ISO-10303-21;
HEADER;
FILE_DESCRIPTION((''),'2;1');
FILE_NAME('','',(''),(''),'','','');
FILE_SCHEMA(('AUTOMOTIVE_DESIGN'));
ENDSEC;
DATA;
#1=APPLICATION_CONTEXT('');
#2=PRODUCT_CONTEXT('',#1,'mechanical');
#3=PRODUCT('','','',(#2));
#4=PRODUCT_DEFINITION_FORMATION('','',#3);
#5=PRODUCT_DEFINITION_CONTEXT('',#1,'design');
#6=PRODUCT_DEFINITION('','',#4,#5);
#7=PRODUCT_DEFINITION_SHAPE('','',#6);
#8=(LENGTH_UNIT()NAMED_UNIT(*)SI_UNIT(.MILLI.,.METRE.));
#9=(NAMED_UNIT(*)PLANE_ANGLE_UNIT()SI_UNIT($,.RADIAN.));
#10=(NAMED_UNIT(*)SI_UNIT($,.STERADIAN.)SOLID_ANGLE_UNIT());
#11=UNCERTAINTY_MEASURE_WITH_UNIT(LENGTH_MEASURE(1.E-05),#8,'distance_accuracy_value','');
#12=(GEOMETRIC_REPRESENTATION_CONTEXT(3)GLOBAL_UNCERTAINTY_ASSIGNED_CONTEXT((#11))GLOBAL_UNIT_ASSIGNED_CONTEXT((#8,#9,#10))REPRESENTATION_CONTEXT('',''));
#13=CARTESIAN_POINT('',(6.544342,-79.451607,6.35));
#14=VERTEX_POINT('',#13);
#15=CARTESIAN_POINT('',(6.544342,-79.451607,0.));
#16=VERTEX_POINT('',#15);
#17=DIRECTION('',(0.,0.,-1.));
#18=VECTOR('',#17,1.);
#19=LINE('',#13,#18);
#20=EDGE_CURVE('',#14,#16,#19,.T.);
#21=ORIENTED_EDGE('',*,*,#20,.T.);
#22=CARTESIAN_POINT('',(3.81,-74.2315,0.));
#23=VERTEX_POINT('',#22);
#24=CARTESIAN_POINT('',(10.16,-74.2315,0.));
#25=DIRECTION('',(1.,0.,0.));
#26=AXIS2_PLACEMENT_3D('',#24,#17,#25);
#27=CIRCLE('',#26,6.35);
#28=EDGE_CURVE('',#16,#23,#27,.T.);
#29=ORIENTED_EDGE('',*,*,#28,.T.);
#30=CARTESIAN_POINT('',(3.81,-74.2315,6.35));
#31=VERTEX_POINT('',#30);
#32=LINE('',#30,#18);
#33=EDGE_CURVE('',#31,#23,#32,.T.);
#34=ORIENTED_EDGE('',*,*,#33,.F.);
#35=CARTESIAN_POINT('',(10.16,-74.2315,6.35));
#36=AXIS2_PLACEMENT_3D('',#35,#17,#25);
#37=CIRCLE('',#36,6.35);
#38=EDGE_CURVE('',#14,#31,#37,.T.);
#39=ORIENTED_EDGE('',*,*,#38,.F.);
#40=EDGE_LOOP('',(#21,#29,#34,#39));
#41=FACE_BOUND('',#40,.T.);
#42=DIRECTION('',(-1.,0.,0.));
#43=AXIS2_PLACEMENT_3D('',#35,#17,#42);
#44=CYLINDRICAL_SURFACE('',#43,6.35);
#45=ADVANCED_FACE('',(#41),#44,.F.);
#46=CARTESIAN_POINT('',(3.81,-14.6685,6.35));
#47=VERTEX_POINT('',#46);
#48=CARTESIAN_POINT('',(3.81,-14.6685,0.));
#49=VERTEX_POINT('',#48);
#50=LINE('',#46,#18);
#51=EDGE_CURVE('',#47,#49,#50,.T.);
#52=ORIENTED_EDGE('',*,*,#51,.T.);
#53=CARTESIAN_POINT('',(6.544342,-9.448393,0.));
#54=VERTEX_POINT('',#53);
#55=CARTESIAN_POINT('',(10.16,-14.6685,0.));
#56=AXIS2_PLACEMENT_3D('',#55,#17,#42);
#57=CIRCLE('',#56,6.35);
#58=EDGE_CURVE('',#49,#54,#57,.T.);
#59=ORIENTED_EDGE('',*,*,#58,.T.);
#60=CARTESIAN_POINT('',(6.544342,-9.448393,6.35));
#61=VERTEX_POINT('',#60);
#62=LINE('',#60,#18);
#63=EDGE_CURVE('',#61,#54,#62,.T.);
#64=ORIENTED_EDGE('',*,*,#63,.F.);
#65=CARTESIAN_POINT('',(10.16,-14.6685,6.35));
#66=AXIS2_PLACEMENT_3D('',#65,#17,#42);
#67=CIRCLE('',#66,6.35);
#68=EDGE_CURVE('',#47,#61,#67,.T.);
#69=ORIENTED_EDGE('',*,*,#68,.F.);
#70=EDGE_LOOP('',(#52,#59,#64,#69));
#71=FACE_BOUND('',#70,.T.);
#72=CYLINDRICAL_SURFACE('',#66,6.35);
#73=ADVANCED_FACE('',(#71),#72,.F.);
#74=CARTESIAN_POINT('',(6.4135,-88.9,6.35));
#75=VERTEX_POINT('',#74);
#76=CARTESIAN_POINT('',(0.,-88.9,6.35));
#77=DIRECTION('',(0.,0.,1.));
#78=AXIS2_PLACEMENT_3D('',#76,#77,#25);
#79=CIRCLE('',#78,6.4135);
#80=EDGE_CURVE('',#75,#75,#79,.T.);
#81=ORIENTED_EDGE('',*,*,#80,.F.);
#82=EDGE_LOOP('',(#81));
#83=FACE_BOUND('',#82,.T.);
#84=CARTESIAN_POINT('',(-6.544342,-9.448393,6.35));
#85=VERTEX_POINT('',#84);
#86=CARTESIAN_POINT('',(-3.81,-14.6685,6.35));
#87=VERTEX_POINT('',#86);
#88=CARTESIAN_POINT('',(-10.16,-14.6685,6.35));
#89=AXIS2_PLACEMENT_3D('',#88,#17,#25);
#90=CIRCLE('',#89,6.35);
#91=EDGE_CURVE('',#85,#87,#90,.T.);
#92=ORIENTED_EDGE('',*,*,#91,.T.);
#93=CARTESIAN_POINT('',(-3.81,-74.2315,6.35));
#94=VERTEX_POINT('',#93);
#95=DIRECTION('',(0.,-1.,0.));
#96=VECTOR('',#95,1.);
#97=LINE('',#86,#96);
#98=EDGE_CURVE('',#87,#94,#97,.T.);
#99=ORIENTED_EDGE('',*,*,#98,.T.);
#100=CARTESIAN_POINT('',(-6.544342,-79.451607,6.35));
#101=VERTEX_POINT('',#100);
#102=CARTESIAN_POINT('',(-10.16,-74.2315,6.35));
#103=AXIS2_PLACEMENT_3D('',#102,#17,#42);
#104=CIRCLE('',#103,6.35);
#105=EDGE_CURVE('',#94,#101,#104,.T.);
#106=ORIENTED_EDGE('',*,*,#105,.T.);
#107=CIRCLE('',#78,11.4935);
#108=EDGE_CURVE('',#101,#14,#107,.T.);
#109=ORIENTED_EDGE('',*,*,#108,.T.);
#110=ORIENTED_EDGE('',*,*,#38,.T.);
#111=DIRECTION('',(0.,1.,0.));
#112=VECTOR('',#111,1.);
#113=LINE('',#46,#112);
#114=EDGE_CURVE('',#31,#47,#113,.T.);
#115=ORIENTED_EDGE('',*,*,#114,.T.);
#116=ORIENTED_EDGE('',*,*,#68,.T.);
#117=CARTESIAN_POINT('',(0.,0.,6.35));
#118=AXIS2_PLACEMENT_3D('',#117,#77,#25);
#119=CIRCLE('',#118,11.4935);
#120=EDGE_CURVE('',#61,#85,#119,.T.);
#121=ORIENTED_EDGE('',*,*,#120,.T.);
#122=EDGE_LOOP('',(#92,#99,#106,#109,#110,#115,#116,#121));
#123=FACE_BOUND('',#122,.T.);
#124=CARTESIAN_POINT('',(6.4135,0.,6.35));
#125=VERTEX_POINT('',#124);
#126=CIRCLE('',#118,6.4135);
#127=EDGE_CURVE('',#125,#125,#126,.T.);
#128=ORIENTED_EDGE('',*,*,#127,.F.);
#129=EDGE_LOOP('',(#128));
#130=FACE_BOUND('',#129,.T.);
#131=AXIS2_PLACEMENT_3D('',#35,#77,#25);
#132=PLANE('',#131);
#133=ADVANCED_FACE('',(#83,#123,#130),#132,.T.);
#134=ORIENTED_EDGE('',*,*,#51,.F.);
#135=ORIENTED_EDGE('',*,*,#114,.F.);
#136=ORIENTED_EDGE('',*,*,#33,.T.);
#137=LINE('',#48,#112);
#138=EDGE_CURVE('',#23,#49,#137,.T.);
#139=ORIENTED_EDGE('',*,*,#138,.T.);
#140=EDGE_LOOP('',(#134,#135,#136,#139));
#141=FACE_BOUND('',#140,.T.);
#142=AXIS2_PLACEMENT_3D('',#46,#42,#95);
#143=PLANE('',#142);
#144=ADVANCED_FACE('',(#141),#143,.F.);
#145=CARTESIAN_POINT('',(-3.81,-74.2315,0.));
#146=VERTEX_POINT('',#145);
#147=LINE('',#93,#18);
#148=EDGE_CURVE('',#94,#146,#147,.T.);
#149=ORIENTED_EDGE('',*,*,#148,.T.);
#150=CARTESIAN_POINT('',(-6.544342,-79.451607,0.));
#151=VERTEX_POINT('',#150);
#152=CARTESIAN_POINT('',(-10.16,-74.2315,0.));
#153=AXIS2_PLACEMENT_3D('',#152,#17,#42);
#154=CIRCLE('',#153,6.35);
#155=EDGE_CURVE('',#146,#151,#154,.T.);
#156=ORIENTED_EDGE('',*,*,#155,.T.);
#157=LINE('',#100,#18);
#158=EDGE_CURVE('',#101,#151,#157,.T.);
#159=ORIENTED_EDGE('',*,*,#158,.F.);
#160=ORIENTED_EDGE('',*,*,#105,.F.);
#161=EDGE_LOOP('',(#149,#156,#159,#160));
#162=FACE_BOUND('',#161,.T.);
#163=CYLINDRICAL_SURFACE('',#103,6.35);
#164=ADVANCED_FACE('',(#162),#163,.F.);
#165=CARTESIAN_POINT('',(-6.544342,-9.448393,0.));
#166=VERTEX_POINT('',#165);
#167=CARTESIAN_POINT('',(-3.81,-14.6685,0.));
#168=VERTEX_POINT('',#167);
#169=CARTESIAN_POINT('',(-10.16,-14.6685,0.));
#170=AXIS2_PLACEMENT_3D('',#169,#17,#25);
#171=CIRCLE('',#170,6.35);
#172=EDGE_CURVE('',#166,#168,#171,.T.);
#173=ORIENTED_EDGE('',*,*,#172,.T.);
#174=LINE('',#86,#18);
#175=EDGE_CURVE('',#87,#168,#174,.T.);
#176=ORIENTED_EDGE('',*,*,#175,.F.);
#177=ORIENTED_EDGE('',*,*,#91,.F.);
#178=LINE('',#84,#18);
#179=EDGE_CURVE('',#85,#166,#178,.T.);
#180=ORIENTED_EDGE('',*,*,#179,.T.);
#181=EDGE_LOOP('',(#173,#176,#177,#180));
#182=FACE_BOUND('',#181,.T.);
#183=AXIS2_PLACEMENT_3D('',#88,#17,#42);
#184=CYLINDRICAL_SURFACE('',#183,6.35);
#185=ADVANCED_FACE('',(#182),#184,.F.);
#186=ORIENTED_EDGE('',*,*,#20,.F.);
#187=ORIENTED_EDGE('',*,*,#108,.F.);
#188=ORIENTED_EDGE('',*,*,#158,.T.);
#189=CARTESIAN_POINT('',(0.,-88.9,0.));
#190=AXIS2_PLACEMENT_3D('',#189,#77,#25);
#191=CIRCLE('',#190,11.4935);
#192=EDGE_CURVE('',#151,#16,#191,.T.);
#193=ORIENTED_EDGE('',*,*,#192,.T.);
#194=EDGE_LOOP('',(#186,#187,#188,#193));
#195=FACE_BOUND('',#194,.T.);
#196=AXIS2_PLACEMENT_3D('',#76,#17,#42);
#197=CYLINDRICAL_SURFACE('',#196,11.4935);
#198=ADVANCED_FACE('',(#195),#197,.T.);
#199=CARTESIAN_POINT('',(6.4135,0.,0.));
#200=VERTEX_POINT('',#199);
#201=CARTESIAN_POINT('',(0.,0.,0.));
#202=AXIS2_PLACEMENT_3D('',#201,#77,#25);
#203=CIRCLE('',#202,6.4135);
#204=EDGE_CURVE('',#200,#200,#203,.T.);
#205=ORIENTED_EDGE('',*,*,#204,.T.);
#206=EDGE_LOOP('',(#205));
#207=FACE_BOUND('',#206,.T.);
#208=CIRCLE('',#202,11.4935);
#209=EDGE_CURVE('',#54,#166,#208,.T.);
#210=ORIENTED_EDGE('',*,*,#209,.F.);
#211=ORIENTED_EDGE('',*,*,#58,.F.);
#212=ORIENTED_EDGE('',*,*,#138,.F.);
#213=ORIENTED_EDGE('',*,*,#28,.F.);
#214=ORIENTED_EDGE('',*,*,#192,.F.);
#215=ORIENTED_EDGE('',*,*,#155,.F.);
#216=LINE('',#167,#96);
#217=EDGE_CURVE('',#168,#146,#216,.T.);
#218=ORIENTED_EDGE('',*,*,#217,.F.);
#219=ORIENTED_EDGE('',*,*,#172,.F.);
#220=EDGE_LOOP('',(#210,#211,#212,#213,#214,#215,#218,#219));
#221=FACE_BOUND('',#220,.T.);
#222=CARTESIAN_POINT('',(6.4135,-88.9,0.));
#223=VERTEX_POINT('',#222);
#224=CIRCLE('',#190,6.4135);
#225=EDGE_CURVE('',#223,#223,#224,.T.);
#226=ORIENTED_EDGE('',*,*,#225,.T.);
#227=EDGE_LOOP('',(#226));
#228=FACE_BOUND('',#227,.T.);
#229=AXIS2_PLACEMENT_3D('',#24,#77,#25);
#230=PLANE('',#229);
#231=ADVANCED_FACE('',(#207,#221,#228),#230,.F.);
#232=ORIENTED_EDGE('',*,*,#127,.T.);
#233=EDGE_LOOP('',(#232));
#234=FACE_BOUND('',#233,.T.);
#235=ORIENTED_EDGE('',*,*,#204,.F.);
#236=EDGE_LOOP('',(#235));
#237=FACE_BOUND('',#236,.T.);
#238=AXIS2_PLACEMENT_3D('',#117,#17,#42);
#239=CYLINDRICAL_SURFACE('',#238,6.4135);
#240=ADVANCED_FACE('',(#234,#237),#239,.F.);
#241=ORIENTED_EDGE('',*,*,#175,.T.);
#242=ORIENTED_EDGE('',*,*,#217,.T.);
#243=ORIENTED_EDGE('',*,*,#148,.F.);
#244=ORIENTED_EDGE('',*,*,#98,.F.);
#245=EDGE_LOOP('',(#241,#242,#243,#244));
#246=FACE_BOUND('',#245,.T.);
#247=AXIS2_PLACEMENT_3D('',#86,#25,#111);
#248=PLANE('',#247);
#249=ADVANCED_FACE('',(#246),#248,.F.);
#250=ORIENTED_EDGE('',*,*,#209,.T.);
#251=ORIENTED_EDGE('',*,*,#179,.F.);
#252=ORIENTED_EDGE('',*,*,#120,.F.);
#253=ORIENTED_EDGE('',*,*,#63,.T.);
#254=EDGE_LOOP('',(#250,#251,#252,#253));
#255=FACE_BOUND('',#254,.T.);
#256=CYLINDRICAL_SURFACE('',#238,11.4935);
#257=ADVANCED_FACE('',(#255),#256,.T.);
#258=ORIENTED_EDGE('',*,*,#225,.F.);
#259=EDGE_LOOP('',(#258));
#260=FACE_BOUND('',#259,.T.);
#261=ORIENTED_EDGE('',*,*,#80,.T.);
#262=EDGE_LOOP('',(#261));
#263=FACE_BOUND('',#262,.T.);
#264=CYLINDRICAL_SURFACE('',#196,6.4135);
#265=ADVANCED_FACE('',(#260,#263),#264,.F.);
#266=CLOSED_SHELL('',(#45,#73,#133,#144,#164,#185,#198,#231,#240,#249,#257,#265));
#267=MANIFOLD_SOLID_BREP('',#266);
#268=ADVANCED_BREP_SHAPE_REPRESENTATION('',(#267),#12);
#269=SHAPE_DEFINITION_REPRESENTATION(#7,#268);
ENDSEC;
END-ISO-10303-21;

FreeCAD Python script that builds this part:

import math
import FreeCAD as App
import Part
import Sketcher
Q = App.Units.Quantity

doc = App.newDocument("Part")
body = doc.addObject("PartDesign::Body", "Body")

sketch1 = doc.addObject("Sketcher::SketchObject", "Sketch")
body.addObject(sketch1)
sketch1.AttachmentSupport = (doc.XY_Plane, [""])
sketch1.MapMode = "FlatFace"
sketch1.addGeometry([
    Part.LineSegment(App.Vector(-4, -15, 0), App.Vector(-4, -74, 0)),
    Part.ArcOfCircle(Part.Circle(App.Vector(-10, -74, 0), App.Vector(0, 0, 1), 6), math.radians(-55), math.radians(0)),
    Part.ArcOfCircle(Part.Circle(App.Vector(0, -89, 0), App.Vector(0, 0, 1), 11), math.radians(125), math.radians(415)),
    Part.ArcOfCircle(Part.Circle(App.Vector(10, -74, 0), App.Vector(0, 0, 1), 6), math.radians(-180), math.radians(-125)),
    Part.LineSegment(App.Vector(4, -74, 0), App.Vector(4, -15, 0)),
    Part.ArcOfCircle(Part.Circle(App.Vector(10, -15, 0), App.Vector(0, 0, 1), 6), math.radians(125), math.radians(180)),
    Part.ArcOfCircle(Part.Circle(App.Vector(0, 0, 0), App.Vector(0, 0, 1), 11), math.radians(-55), math.radians(235)),
    Part.ArcOfCircle(Part.Circle(App.Vector(-10, -15, 0), App.Vector(0, 0, 1), 6), math.radians(0), math.radians(55)),
    Part.Circle(App.Vector(0, -89, 0), App.Vector(0, 0, 1), 6),
    Part.Circle(App.Vector(0, 0, 0), App.Vector(0, 0, 1), 6),
], False)
sketch1.addConstraint([
    Sketcher.Constraint("Tangent", 0, 2, 1, 2),
    Sketcher.Constraint("Tangent", 1, 1, 2, 1),
    Sketcher.Constraint("Tangent", 2, 2, 3, 2),
    Sketcher.Constraint("Tangent", 3, 1, 4, 1),
    Sketcher.Constraint("Tangent", 4, 2, 5, 2),
    Sketcher.Constraint("Tangent", 5, 1, 6, 1),
    Sketcher.Constraint("Tangent", 6, 2, 7, 2),
    Sketcher.Constraint("Tangent", 7, 1, 0, 1),
    Sketcher.Constraint("Vertical", 0),
    Sketcher.Constraint("Vertical", 4),
    Sketcher.Constraint("Coincident", 6, 3, -1, 1),
    Sketcher.Constraint("Coincident", 9, 3, -1, 1),
    Sketcher.Constraint("Coincident", 8, 3, 2, 3),
    Sketcher.Constraint("Equal", 1, 3),
    Sketcher.Constraint("Equal", 3, 5),
    Sketcher.Constraint("Equal", 2, 6),
    Sketcher.Constraint("Equal", 5, 7),
    Sketcher.Constraint("Equal", 8, 9),
    Sketcher.Constraint("Symmetric", 1, 3, 3, 3, -2),
    Sketcher.Constraint("Radius", 1, Q("0.25 in")),
    Sketcher.Constraint("Diameter", 8, Q("0.505 in")),
    Sketcher.Constraint("DistanceX", 1, 3, -1, 1, Q("0.4 in")),
    Sketcher.Constraint("DistanceY", 2, 3, -1, 1, Q("3.5 in")),
    Sketcher.Constraint("Radius", 2, Q("0.4525 in")),
])
pad1 = doc.addObject("PartDesign::Pad", "Pad")
body.addObject(pad1)
pad1.Profile = sketch1
pad1.Length = Q("0.25 in")

doc.recompute()
